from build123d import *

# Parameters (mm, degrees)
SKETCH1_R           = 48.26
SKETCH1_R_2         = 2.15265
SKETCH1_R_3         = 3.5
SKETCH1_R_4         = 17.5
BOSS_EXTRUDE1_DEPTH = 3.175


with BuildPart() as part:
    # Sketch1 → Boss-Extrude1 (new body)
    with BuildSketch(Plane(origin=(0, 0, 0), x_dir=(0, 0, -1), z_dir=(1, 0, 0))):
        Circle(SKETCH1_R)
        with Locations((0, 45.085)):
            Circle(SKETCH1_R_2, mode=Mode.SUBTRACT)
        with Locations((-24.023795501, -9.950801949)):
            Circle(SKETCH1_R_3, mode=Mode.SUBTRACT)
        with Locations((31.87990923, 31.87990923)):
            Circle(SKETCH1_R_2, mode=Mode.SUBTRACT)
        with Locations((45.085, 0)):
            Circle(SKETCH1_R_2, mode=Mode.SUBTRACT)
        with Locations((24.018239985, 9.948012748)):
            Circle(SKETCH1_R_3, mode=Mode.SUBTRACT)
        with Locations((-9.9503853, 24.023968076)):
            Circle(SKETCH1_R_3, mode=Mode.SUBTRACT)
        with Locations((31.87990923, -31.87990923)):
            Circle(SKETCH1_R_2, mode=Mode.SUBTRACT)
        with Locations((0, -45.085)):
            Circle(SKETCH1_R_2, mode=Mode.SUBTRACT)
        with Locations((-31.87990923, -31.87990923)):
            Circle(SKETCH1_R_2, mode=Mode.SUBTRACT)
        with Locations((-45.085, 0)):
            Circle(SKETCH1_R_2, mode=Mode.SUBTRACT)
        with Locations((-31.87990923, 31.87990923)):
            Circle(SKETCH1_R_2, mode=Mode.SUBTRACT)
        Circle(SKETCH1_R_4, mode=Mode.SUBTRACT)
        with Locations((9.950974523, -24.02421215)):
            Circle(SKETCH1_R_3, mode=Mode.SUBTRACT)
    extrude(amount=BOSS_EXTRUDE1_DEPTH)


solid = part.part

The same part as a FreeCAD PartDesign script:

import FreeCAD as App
import Part
import Sketcher

doc = App.newDocument("Part")
body = doc.addObject("PartDesign::Body", "Body")

sketch1 = doc.addObject("Sketcher::SketchObject", "Sketch")
body.addObject(sketch1)
sketch1.AttachmentSupport = (doc.YZ_Plane, [""])
sketch1.MapMode = "FlatFace"
sketch1.addGeometry([
    Part.Circle(App.Vector(0, 0, 0), App.Vector(0, 0, 1), 48.26),
    Part.Circle(App.Vector(-31.879909, 31.879909, 0), App.Vector(0, 0, 1), 2.15265),
    Part.Circle(App.Vector(-9.950802, 24.023796, 0), App.Vector(0, 0, 1), 3.5),
    Part.Circle(App.Vector(-45.085, 0, 0), App.Vector(0, 0, 1), 2.15265),
    Part.Circle(App.Vector(-24.024212, -9.950975, 0), App.Vector(0, 0, 1), 3.5),
    Part.Circle(App.Vector(-31.879909, -31.879909, 0), App.Vector(0, 0, 1), 2.15265),
    Part.Circle(App.Vector(0, 45.085, 0), App.Vector(0, 0, 1), 2.15265),
    Part.Circle(App.Vector(31.879909, 31.879909, 0), App.Vector(0, 0, 1), 2.15265),
    Part.Circle(App.Vector(24.023968, 9.950385, 0), App.Vector(0, 0, 1), 3.5),
    Part.Circle(App.Vector(0, 0, 0), App.Vector(0, 0, 1), 17.5),
    Part.Circle(App.Vector(9.948013, -24.01824, 0), App.Vector(0, 0, 1), 3.5),
    Part.Circle(App.Vector(0, -45.085, 0), App.Vector(0, 0, 1), 2.15265),
    Part.Circle(App.Vector(45.085, 0, 0), App.Vector(0, 0, 1), 2.15265),
    Part.Circle(App.Vector(31.879909, -31.879909, 0), App.Vector(0, 0, 1), 2.15265),
], False)
sketch1.addConstraint([
    Sketcher.Constraint("Coincident", 0, 3, -1, 1),
    Sketcher.Constraint("Coincident", 9, 3, -1, 1),
    Sketcher.Constraint("Equal", 1, 3),
    Sketcher.Constraint("Equal", 2, 4),
    Sketcher.Constraint("Equal", 3, 5),
    Sketcher.Constraint("Equal", 5, 6),
    Sketcher.Constraint("Equal", 6, 7),
    Sketcher.Constraint("Equal", 4, 8),
    Sketcher.Constraint("Equal", 8, 10),
    Sketcher.Constraint("Equal", 7, 11),
    Sketcher.Constraint("Equal", 11, 12),
    Sketcher.Constraint("Equal", 12, 13),
    Sketcher.Constraint("Symmetric", 5, 3, 7, 3, -1, 1),
    Sketcher.Constraint("Symmetric", 6, 3, 11, 3, -1, 1),
    Sketcher.Constraint("Symmetric", 3, 3, 12, 3, -1, 1),
    Sketcher.Constraint("Symmetric", 1, 3, 13, 3, -1, 1),
    Sketcher.Constraint("Symmetric", 1, 3, 7, 3, -2),
    Sketcher.Constraint("PointOnObject", 3, 3, -1),
    Sketcher.Constraint("PointOnObject", 6, 3, -2),
    Sketcher.Constraint("Diameter", 2, 7.0),
    Sketcher.Constraint("Diameter", 9, 35.0),
    Sketcher.Constraint("Diameter", 0, 96.52),
    Sketcher.Constraint("Diameter", 1, 4.3053),
    Sketcher.Constraint("DistanceX", 3, 3, -1, 1, 45.085),
    Sketcher.Constraint("DistanceY", -1, 1, 6, 3, 45.085),
    Sketcher.Constraint("DistanceX", 2, 3, -1, 1, 9.950802),
    Sketcher.Constraint("DistanceX", 1, 3, -1, 1, 31.879909),
    Sketcher.Constraint("DistanceY", -1, 1, 1, 3, 31.879909),
    Sketcher.Constraint("DistanceX", -1, 1, 8, 3, 24.023968),
    Sketcher.Constraint("DistanceY", 10, 3, -1, 1, 24.01824),
    Sketcher.Constraint("DistanceX", 4, 3, 2, 3, 14.07341),
    Sketcher.Constraint("DistanceY", 4, 3, 2, 3, 33.97477),
    Sketcher.Constraint("DistanceY", 8, 3, 2, 3, 14.07341),
    Sketcher.Constraint("DistanceX", 5, 3, 10, 3, 41.827922),
    Sketcher.Constraint("DistanceY", -1, 1, 2, 3, 24.023796),
])
pad1 = doc.addObject("PartDesign::Pad", "Pad")
body.addObject(pad1)
pad1.Profile = sketch1
pad1.Length = 3.175

doc.recompute()
